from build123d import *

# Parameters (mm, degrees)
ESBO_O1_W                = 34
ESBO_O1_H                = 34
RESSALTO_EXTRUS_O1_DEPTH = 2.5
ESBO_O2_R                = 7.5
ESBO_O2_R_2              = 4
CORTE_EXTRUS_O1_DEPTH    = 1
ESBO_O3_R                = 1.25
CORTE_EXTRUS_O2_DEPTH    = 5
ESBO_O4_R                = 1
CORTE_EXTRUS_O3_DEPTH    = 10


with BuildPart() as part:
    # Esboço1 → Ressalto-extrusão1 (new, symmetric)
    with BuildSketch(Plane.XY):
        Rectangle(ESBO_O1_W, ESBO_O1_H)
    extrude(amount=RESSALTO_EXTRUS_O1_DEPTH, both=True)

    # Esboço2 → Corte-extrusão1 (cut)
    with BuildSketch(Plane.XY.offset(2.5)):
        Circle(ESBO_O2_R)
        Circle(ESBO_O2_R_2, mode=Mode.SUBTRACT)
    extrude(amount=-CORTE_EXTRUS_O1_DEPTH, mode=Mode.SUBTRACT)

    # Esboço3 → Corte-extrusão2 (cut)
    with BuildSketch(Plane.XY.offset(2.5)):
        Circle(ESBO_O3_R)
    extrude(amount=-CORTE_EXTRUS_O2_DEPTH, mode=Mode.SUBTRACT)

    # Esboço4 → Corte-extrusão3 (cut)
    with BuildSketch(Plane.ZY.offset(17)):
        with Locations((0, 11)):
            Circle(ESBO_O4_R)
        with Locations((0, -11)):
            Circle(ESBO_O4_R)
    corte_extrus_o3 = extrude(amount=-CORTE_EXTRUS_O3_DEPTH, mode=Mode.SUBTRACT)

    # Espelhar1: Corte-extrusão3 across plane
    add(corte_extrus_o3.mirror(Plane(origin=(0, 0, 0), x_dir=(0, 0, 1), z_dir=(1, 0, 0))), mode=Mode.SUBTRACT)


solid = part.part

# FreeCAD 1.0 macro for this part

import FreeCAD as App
import Part
import Sketcher

V = App.Vector
Q = App.Units.Quantity

doc = App.newDocument("Part")
body = doc.addObject("PartDesign::Body", "Body")

sketch1 = doc.addObject("Sketcher::SketchObject", "Sketch")
body.addObject(sketch1)
sketch1.AttachmentSupport = (doc.XY_Plane, [""])
sketch1.MapMode = "FlatFace"
sketch1.addGeometry([
    Part.LineSegment(V(-17, 17, 0), V(-17, -17, 0)),
    Part.LineSegment(V(-17, -17, 0), V(17, -17, 0)),
    Part.LineSegment(V(17, -17, 0), V(17, 17, 0)),
    Part.LineSegment(V(17, 17, 0), V(-17, 17, 0)),
], False)
sketch1.addConstraint([
    Sketcher.Constraint("Coincident", 0, 2, 1, 1),
    Sketcher.Constraint("Coincident", 1, 2, 2, 1),
    Sketcher.Constraint("Coincident", 2, 2, 3, 1),
    Sketcher.Constraint("Coincident", 3, 2, 0, 1),
    Sketcher.Constraint("Vertical", 0),
    Sketcher.Constraint("Horizontal", 1),
    Sketcher.Constraint("Vertical", 2),
    Sketcher.Constraint("Horizontal", 3),
    Sketcher.Constraint("Symmetric", 0, 2, 2, 2, -1, 1),
    Sketcher.Constraint("Equal", 3, 0),
    Sketcher.Constraint("DistanceX", 1, 1, 1, 2, Q("34 mm")),
])
pad1 = doc.addObject("PartDesign::Pad", "Pad")
body.addObject(pad1)
pad1.Profile = sketch1
pad1.Length = 5
pad1.Midplane = True

sketch2 = doc.addObject("Sketcher::SketchObject", "Sketch001")
body.addObject(sketch2)
sketch2.AttachmentSupport = (doc.XY_Plane, [""])
sketch2.MapMode = "FlatFace"
sketch2.AttachmentOffset = App.Placement(V(0, 0, 2.5), App.Rotation())
sketch2.addGeometry([
    Part.Circle(V(0, 0, 0), V(0, 0, 1), 7.5),
    Part.Circle(V(0, 0, 0), V(0, 0, 1), 4),
], False)
sketch2.addConstraint([
    Sketcher.Constraint("Coincident", 0, 3, -1, 1),
    Sketcher.Constraint("Coincident", 1, 3, -1, 1),
    Sketcher.Constraint("Diameter", 0, Q("15 mm")),
    Sketcher.Constraint("Diameter", 1, Q("8 mm")),
])
pocket1 = doc.addObject("PartDesign::Pocket", "Pocket")
body.addObject(pocket1)
pocket1.Profile = sketch2
pocket1.Length = 1

sketch3 = doc.addObject("Sketcher::SketchObject", "Sketch002")
body.addObject(sketch3)
sketch3.AttachmentSupport = (doc.XY_Plane, [""])
sketch3.MapMode = "FlatFace"
sketch3.AttachmentOffset = App.Placement(V(0, 0, 2.5), App.Rotation())
sketch3.addGeometry(Part.Circle(V(0, 0, 0), V(0, 0, 1), 1.2), False)
sketch3.addConstraint([
    Sketcher.Constraint("Coincident", 0, 3, -1, 1),
    Sketcher.Constraint("Diameter", 0, Q("2.5 mm")),
])
pocket2 = doc.addObject("PartDesign::Pocket", "Pocket001")
body.addObject(pocket2)
pocket2.Profile = sketch3
pocket2.Length = 5

sketch4 = doc.addObject("Sketcher::SketchObject", "Sketch003")
body.addObject(sketch4)
sketch4.AttachmentSupport = (doc.YZ_Plane, [""])
sketch4.MapMode = "FlatFace"
sketch4.AttachmentOffset = App.Placement(V(0, 0, -17), App.Rotation())
sketch4.addGeometry([
    Part.Circle(V(11, 0, 0), V(0, 0, 1), 1),
    Part.Circle(V(-11, 0, 0), V(0, 0, 1), 1),
], False)
sketch4.addConstraint([
    Sketcher.Constraint("Equal", 0, 1),
    Sketcher.Constraint("Symmetric", 0, 3, 1, 3, -1, 1),
    Sketcher.Constraint("PointOnObject", 0, 3, -1),
    Sketcher.Constraint("Diameter", 0, Q("2 mm")),
    Sketcher.Constraint("DistanceX", -1, 1, 0, 3, Q("11 mm")),
])
pocket3 = doc.addObject("PartDesign::Pocket", "Pocket002")
body.addObject(pocket3)
pocket3.Profile = sketch4
pocket3.Length = 10
pocket3.Reversed = True
doc.recompute()

mirrored = doc.addObject("PartDesign::Mirrored", "Mirrored")
body.addObject(mirrored)
mirrored.Originals = [pocket3]
mirrored.MirrorPlane = (doc.YZ_Plane, [""])
body.Tip = mirrored

doc.recompute()
